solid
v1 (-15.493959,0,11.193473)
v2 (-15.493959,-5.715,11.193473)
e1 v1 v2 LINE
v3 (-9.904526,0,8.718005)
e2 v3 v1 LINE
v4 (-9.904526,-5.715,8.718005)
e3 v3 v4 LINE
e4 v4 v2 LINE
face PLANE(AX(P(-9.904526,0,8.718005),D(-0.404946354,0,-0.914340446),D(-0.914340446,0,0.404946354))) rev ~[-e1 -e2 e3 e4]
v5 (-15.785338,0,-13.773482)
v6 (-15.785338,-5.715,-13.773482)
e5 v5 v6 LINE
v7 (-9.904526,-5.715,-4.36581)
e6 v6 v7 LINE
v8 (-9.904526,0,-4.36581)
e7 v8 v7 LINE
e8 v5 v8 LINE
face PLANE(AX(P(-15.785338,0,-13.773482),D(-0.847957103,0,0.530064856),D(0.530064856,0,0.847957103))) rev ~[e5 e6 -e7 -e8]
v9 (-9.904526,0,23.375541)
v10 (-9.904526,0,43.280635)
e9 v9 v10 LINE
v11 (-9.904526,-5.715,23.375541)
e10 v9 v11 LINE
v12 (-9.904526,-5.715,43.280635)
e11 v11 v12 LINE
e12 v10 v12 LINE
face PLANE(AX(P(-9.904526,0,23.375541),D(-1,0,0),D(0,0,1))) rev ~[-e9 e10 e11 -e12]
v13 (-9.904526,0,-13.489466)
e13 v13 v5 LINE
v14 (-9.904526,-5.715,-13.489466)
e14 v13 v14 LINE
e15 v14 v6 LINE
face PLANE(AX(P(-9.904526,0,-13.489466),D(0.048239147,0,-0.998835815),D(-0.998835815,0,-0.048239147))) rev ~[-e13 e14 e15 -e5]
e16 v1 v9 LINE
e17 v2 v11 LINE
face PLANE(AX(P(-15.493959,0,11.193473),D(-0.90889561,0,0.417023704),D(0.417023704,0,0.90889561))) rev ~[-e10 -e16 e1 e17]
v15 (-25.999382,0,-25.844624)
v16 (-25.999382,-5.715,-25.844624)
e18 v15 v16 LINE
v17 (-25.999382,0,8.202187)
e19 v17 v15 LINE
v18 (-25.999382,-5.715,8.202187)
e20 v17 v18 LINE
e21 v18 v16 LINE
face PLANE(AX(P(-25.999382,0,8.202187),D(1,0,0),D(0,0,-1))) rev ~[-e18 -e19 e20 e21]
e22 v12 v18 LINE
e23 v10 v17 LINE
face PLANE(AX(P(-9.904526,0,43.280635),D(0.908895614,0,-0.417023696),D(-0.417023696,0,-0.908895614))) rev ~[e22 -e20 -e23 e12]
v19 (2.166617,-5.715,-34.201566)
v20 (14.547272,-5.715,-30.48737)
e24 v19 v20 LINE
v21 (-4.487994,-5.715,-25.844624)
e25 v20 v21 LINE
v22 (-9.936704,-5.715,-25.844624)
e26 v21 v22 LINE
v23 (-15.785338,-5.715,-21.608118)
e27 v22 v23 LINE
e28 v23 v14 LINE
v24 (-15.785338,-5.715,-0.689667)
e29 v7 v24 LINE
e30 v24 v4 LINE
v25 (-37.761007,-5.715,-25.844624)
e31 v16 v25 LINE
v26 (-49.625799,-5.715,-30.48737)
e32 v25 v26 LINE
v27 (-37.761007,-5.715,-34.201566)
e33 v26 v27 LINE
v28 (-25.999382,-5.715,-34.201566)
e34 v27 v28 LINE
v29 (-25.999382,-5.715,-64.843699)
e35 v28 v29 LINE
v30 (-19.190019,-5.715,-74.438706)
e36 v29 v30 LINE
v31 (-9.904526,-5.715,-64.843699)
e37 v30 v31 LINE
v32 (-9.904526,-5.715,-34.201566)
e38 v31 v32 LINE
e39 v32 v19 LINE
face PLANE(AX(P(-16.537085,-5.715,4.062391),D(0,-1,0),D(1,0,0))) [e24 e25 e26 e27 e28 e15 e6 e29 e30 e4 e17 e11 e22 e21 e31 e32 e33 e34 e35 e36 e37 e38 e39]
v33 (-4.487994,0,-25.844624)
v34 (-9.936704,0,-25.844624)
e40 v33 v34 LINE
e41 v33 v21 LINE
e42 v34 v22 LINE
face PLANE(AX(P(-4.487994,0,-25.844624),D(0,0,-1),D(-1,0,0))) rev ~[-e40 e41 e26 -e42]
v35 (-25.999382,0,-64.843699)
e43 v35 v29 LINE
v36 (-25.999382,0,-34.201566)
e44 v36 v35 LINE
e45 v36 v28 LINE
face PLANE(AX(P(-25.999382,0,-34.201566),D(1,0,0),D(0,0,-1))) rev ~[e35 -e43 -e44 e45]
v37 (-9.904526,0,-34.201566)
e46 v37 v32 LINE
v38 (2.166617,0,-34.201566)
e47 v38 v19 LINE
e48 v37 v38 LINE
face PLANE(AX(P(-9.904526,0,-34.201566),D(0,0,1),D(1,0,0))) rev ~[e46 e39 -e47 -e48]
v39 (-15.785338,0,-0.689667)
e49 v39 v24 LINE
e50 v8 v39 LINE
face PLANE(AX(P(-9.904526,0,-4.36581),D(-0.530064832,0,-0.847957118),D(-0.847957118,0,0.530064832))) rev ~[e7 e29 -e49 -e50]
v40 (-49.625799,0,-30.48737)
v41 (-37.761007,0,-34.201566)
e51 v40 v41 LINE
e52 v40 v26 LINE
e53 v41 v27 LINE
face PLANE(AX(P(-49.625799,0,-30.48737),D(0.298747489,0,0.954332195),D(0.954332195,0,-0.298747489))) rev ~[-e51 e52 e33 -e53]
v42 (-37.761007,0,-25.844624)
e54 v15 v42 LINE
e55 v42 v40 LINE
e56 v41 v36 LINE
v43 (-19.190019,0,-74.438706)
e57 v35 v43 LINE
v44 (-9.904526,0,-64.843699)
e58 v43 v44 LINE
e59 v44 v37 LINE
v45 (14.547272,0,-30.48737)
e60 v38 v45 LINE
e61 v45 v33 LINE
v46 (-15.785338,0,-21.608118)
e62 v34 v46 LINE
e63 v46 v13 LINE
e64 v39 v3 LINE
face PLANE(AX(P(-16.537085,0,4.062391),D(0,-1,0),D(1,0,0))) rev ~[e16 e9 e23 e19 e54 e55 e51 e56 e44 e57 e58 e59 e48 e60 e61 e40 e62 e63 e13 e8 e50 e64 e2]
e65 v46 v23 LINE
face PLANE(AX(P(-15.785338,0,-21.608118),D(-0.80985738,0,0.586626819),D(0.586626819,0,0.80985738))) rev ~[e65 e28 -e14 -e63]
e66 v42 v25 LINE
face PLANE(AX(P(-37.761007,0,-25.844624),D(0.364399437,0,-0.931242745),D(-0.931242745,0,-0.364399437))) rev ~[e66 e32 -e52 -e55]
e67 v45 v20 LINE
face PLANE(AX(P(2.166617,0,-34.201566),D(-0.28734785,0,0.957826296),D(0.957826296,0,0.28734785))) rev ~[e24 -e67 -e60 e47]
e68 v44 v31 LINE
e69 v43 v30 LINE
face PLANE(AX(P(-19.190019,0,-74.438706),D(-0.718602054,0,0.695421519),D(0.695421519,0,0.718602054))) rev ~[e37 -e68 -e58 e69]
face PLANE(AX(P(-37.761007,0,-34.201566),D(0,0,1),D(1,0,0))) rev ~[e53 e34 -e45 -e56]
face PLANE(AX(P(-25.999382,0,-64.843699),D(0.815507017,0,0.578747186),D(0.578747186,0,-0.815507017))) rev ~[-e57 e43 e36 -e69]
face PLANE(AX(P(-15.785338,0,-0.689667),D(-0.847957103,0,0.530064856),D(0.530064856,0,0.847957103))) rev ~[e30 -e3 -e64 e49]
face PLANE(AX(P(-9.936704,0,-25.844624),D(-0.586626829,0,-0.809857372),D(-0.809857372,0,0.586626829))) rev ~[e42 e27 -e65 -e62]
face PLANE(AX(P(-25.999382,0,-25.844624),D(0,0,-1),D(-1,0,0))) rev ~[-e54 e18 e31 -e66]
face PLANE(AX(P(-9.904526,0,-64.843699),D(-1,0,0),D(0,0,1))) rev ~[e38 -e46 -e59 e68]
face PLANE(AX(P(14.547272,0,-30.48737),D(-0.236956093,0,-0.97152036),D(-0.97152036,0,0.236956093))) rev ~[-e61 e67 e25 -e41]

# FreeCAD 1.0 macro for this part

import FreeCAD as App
import Part
import Sketcher
from FreeCAD import Vector
Q = App.Units.Quantity

doc = App.newDocument("Part")
params = doc.addObject("Spreadsheet::Sheet", "Params")
for row, (alias, value) in enumerate([
    ("pad1_length", "0.225 in"),
], start=1):
    params.set(f"A{row}", alias)
    params.set(f"B{row}", "=" + value)
    params.setAlias(f"B{row}", alias)

body = doc.addObject("PartDesign::Body", "Body")

# Sketch on XZ plane
sketch1 = body.newObject("Sketcher::SketchObject", "Sketch")
sketch1.AttachmentSupport = (doc.getObject("XZ_Plane"), [""])
sketch1.MapMode = "FlatFace"
sketch1.addGeometry(Part.LineSegment(Vector(-10, 23, 0), Vector(-10, 43, 0)), False)
sketch1.addGeometry(Part.LineSegment(Vector(-10, 43, 0), Vector(-26, 8, 0)), False)
sketch1.addGeometry(Part.LineSegment(Vector(-26, 8, 0), Vector(-26, -26, 0)), False)
sketch1.addGeometry(Part.LineSegment(Vector(-26, -26, 0), Vector(-38, -26, 0)), False)
sketch1.addGeometry(Part.LineSegment(Vector(-38, -26, 0), Vector(-50, -30, 0)), False)
sketch1.addGeometry(Part.LineSegment(Vector(-50, -30, 0), Vector(-38, -34, 0)), False)
sketch1.addGeometry(Part.LineSegment(Vector(-38, -34, 0), Vector(-26, -34, 0)), False)
sketch1.addGeometry(Part.LineSegment(Vector(-26, -34, 0), Vector(-26, -65, 0)), False)
sketch1.addGeometry(Part.LineSegment(Vector(-26, -65, 0), Vector(-19, -74, 0)), False)
sketch1.addGeometry(Part.LineSegment(Vector(-19, -74, 0), Vector(-10, -65, 0)), False)
sketch1.addGeometry(Part.LineSegment(Vector(-10, -65, 0), Vector(-10, -34, 0)), False)
sketch1.addGeometry(Part.LineSegment(Vector(-10, -34, 0), Vector(2, -34, 0)), False)
sketch1.addGeometry(Part.LineSegment(Vector(2, -34, 0), Vector(15, -30, 0)), False)
sketch1.addGeometry(Part.LineSegment(Vector(15, -30, 0), Vector(-4, -26, 0)), False)
sketch1.addGeometry(Part.LineSegment(Vector(-4, -26, 0), Vector(-10, -26, 0)), False)
sketch1.addGeometry(Part.LineSegment(Vector(-10, -26, 0), Vector(-16, -22, 0)), False)
sketch1.addGeometry(Part.LineSegment(Vector(-16, -22, 0), Vector(-10, -13, 0)), False)
sketch1.addGeometry(Part.LineSegment(Vector(-10, -13, 0), Vector(-16, -14, 0)), False)
sketch1.addGeometry(Part.LineSegment(Vector(-16, -14, 0), Vector(-10, -4, 0)), False)
sketch1.addGeometry(Part.LineSegment(Vector(-10, -4, 0), Vector(-16, -1, 0)), False)
sketch1.addGeometry(Part.LineSegment(Vector(-16, -1, 0), Vector(-10, 9, 0)), False)
sketch1.addGeometry(Part.LineSegment(Vector(-10, 9, 0), Vector(-15, 11, 0)), False)
sketch1.addGeometry(Part.LineSegment(Vector(-15, 11, 0), Vector(-10, 23, 0)), False)
sketch1.addConstraint(Sketcher.Constraint("Coincident", 0, 2, 1, 1))
sketch1.addConstraint(Sketcher.Constraint("Coincident", 1, 2, 2, 1))
sketch1.addConstraint(Sketcher.Constraint("Coincident", 2, 2, 3, 1))
sketch1.addConstraint(Sketcher.Constraint("Coincident", 3, 2, 4, 1))
sketch1.addConstraint(Sketcher.Constraint("Coincident", 4, 2, 5, 1))
sketch1.addConstraint(Sketcher.Constraint("Coincident", 5, 2, 6, 1))
sketch1.addConstraint(Sketcher.Constraint("Coincident", 6, 2, 7, 1))
sketch1.addConstraint(Sketcher.Constraint("Coincident", 7, 2, 8, 1))
sketch1.addConstraint(Sketcher.Constraint("Coincident", 8, 2, 9, 1))
sketch1.addConstraint(Sketcher.Constraint("Coincident", 9, 2, 10, 1))
sketch1.addConstraint(Sketcher.Constraint("Coincident", 10, 2, 11, 1))
sketch1.addConstraint(Sketcher.Constraint("Coincident", 11, 2, 12, 1))
sketch1.addConstraint(Sketcher.Constraint("Coincident", 12, 2, 13, 1))
sketch1.addConstraint(Sketcher.Constraint("Coincident", 13, 2, 14, 1))
sketch1.addConstraint(Sketcher.Constraint("Coincident", 14, 2, 15, 1))
sketch1.addConstraint(Sketcher.Constraint("Coincident", 15, 2, 16, 1))
sketch1.addConstraint(Sketcher.Constraint("Coincident", 16, 2, 17, 1))
sketch1.addConstraint(Sketcher.Constraint("Coincident", 17, 2, 18, 1))
sketch1.addConstraint(Sketcher.Constraint("Coincident", 18, 2, 19, 1))
sketch1.addConstraint(Sketcher.Constraint("Coincident", 19, 2, 20, 1))
sketch1.addConstraint(Sketcher.Constraint("Coincident", 20, 2, 21, 1))
sketch1.addConstraint(Sketcher.Constraint("Coincident", 21, 2, 22, 1))
sketch1.addConstraint(Sketcher.Constraint("Coincident", 22, 2, 0, 1))
sketch1.addConstraint(Sketcher.Constraint("Vertical", 0))
sketch1.addConstraint(Sketcher.Constraint("Vertical", 2))
sketch1.addConstraint(Sketcher.Constraint("Horizontal", 3))
sketch1.addConstraint(Sketcher.Constraint("Horizontal", 6))
sketch1.addConstraint(Sketcher.Constraint("Vertical", 7))
sketch1.addConstraint(Sketcher.Constraint("Vertical", 10))
sketch1.addConstraint(Sketcher.Constraint("Horizontal", 11))
sketch1.addConstraint(Sketcher.Constraint("Horizontal", 14))
sketch1.addConstraint(Sketcher.Constraint("Perpendicular", 15, 16))
sketch1.addConstraint(Sketcher.Constraint("Perpendicular", 18, 19))
sketch1.addConstraint(Sketcher.Constraint("Perpendicular", 19, 20))
sketch1.addConstraint(Sketcher.Constraint("Parallel", 1, 22))
sketch1.addConstraint(Sketcher.Constraint("Horizontal", 7, 2, 9, 2))
sketch1.addConstraint(Sketcher.Constraint("Horizontal", 6, 2, 10, 2))
sketch1.addConstraint(Sketcher.Constraint("Horizontal", 4, 2, 12, 2))
sketch1.addConstraint(Sketcher.Constraint("Horizontal", 3, 2, 13, 2))
sketch1.addConstraint(Sketcher.Constraint("Vertical", 3, 2, 5, 2))
sketch1.addConstraint(Sketcher.Constraint("Vertical", 2, 2, 6, 2))
sketch1.addConstraint(Sketcher.Constraint("Vertical", 0, 2, 9, 2))
sketch1.addConstraint(Sketcher.Constraint("Vertical", 10, 2, 16, 2))
sketch1.addConstraint(Sketcher.Constraint("Vertical", 15, 2, 17, 2))
sketch1.addConstraint(Sketcher.Constraint("Vertical", 16, 2, 18, 2))
sketch1.addConstraint(Sketcher.Constraint("Vertical", 17, 2, 19, 2))
sketch1.addConstraint(Sketcher.Constraint("Vertical", 18, 2, 20, 2))
sketch1.addConstraint(Sketcher.Constraint("DistanceX", -1, 1, 11, 2, Q("0.0852999 in")))
sketch1.addConstraint(Sketcher.Constraint("DistanceX", 14, 2, 14, 1, Q("5.44871 mm")))
sketch1.addConstraint(Sketcher.Constraint("DistanceY", 2, 2, 2, 1, Q("34.046811 mm")))
sketch1.addConstraint(Sketcher.Constraint("DistanceX", 4, 2, -1, 1, Q("49.625799 mm")))
sketch1.addConstraint(Sketcher.Constraint("DistanceY", 7, 2, -1, 1, Q("64.843699 mm")))
sketch1.addConstraint(Sketcher.Constraint("DistanceY", 5, 2, 0, 2, Q("77.482201 mm")))
sketch1.addConstraint(Sketcher.Constraint("DistanceX", 6, 2, 11, 2, Q("28.165999 mm")))
sketch1.addConstraint(Sketcher.Constraint("DistanceX", 10, 2, 12, 2, Q("24.451798 mm")))
sketch1.addConstraint(Sketcher.Constraint("DistanceY", 10, 2, 16, 2, Q("20.7121 mm")))
sketch1.addConstraint(Sketcher.Constraint("DistanceY", 16, 2, 19, 2, Q("12.799799 mm")))
sketch1.addConstraint(Sketcher.Constraint("Distance", 5, Q("12.43256 mm")))
sketch1.addConstraint(Sketcher.Constraint("Distance", 19, Q("6.935271 mm")))
sketch1.addConstraint(Sketcher.Constraint("DistanceX", 3, 2, 3, 1, Q("11.761625 mm")))
sketch1.addConstraint(Sketcher.Constraint("DistanceX", 11, 1, 11, 2, Q("12.071143 mm")))
sketch1.addConstraint(Sketcher.Constraint("DistanceY", 0, 1, 0, 2, Q("19.905094 mm")))
sketch1.addConstraint(Sketcher.Constraint("DistanceY", 7, 2, 7, 1, Q("30.642133 mm")))
sketch1.addConstraint(Sketcher.Constraint("DistanceX", 8, 2, -1, 1, Q("19.190019 mm")))
sketch1.addConstraint(Sketcher.Constraint("DistanceY", 15, 2, -1, 1, Q("21.608118 mm")))
sketch1.addConstraint(Sketcher.Constraint("DistanceY", 18, 2, -1, 1, Q("4.36581 mm")))
sketch1.addConstraint(Sketcher.Constraint("DistanceX", 21, 2, -1, 1, Q("15.493959 mm")))
sketch1.addConstraint(Sketcher.Constraint("DistanceY", 2, 2, 0, 2, Q("69.125259 mm")))
sketch1.addConstraint(Sketcher.Constraint("DistanceY", 8, 2, 6, 2, Q("40.23714 mm")))
pad1 = body.newObject("PartDesign::Pad", "Pad")
pad1.Profile = sketch1
pad1.setExpression("Length", "Params.pad1_length")

doc.recompute()
